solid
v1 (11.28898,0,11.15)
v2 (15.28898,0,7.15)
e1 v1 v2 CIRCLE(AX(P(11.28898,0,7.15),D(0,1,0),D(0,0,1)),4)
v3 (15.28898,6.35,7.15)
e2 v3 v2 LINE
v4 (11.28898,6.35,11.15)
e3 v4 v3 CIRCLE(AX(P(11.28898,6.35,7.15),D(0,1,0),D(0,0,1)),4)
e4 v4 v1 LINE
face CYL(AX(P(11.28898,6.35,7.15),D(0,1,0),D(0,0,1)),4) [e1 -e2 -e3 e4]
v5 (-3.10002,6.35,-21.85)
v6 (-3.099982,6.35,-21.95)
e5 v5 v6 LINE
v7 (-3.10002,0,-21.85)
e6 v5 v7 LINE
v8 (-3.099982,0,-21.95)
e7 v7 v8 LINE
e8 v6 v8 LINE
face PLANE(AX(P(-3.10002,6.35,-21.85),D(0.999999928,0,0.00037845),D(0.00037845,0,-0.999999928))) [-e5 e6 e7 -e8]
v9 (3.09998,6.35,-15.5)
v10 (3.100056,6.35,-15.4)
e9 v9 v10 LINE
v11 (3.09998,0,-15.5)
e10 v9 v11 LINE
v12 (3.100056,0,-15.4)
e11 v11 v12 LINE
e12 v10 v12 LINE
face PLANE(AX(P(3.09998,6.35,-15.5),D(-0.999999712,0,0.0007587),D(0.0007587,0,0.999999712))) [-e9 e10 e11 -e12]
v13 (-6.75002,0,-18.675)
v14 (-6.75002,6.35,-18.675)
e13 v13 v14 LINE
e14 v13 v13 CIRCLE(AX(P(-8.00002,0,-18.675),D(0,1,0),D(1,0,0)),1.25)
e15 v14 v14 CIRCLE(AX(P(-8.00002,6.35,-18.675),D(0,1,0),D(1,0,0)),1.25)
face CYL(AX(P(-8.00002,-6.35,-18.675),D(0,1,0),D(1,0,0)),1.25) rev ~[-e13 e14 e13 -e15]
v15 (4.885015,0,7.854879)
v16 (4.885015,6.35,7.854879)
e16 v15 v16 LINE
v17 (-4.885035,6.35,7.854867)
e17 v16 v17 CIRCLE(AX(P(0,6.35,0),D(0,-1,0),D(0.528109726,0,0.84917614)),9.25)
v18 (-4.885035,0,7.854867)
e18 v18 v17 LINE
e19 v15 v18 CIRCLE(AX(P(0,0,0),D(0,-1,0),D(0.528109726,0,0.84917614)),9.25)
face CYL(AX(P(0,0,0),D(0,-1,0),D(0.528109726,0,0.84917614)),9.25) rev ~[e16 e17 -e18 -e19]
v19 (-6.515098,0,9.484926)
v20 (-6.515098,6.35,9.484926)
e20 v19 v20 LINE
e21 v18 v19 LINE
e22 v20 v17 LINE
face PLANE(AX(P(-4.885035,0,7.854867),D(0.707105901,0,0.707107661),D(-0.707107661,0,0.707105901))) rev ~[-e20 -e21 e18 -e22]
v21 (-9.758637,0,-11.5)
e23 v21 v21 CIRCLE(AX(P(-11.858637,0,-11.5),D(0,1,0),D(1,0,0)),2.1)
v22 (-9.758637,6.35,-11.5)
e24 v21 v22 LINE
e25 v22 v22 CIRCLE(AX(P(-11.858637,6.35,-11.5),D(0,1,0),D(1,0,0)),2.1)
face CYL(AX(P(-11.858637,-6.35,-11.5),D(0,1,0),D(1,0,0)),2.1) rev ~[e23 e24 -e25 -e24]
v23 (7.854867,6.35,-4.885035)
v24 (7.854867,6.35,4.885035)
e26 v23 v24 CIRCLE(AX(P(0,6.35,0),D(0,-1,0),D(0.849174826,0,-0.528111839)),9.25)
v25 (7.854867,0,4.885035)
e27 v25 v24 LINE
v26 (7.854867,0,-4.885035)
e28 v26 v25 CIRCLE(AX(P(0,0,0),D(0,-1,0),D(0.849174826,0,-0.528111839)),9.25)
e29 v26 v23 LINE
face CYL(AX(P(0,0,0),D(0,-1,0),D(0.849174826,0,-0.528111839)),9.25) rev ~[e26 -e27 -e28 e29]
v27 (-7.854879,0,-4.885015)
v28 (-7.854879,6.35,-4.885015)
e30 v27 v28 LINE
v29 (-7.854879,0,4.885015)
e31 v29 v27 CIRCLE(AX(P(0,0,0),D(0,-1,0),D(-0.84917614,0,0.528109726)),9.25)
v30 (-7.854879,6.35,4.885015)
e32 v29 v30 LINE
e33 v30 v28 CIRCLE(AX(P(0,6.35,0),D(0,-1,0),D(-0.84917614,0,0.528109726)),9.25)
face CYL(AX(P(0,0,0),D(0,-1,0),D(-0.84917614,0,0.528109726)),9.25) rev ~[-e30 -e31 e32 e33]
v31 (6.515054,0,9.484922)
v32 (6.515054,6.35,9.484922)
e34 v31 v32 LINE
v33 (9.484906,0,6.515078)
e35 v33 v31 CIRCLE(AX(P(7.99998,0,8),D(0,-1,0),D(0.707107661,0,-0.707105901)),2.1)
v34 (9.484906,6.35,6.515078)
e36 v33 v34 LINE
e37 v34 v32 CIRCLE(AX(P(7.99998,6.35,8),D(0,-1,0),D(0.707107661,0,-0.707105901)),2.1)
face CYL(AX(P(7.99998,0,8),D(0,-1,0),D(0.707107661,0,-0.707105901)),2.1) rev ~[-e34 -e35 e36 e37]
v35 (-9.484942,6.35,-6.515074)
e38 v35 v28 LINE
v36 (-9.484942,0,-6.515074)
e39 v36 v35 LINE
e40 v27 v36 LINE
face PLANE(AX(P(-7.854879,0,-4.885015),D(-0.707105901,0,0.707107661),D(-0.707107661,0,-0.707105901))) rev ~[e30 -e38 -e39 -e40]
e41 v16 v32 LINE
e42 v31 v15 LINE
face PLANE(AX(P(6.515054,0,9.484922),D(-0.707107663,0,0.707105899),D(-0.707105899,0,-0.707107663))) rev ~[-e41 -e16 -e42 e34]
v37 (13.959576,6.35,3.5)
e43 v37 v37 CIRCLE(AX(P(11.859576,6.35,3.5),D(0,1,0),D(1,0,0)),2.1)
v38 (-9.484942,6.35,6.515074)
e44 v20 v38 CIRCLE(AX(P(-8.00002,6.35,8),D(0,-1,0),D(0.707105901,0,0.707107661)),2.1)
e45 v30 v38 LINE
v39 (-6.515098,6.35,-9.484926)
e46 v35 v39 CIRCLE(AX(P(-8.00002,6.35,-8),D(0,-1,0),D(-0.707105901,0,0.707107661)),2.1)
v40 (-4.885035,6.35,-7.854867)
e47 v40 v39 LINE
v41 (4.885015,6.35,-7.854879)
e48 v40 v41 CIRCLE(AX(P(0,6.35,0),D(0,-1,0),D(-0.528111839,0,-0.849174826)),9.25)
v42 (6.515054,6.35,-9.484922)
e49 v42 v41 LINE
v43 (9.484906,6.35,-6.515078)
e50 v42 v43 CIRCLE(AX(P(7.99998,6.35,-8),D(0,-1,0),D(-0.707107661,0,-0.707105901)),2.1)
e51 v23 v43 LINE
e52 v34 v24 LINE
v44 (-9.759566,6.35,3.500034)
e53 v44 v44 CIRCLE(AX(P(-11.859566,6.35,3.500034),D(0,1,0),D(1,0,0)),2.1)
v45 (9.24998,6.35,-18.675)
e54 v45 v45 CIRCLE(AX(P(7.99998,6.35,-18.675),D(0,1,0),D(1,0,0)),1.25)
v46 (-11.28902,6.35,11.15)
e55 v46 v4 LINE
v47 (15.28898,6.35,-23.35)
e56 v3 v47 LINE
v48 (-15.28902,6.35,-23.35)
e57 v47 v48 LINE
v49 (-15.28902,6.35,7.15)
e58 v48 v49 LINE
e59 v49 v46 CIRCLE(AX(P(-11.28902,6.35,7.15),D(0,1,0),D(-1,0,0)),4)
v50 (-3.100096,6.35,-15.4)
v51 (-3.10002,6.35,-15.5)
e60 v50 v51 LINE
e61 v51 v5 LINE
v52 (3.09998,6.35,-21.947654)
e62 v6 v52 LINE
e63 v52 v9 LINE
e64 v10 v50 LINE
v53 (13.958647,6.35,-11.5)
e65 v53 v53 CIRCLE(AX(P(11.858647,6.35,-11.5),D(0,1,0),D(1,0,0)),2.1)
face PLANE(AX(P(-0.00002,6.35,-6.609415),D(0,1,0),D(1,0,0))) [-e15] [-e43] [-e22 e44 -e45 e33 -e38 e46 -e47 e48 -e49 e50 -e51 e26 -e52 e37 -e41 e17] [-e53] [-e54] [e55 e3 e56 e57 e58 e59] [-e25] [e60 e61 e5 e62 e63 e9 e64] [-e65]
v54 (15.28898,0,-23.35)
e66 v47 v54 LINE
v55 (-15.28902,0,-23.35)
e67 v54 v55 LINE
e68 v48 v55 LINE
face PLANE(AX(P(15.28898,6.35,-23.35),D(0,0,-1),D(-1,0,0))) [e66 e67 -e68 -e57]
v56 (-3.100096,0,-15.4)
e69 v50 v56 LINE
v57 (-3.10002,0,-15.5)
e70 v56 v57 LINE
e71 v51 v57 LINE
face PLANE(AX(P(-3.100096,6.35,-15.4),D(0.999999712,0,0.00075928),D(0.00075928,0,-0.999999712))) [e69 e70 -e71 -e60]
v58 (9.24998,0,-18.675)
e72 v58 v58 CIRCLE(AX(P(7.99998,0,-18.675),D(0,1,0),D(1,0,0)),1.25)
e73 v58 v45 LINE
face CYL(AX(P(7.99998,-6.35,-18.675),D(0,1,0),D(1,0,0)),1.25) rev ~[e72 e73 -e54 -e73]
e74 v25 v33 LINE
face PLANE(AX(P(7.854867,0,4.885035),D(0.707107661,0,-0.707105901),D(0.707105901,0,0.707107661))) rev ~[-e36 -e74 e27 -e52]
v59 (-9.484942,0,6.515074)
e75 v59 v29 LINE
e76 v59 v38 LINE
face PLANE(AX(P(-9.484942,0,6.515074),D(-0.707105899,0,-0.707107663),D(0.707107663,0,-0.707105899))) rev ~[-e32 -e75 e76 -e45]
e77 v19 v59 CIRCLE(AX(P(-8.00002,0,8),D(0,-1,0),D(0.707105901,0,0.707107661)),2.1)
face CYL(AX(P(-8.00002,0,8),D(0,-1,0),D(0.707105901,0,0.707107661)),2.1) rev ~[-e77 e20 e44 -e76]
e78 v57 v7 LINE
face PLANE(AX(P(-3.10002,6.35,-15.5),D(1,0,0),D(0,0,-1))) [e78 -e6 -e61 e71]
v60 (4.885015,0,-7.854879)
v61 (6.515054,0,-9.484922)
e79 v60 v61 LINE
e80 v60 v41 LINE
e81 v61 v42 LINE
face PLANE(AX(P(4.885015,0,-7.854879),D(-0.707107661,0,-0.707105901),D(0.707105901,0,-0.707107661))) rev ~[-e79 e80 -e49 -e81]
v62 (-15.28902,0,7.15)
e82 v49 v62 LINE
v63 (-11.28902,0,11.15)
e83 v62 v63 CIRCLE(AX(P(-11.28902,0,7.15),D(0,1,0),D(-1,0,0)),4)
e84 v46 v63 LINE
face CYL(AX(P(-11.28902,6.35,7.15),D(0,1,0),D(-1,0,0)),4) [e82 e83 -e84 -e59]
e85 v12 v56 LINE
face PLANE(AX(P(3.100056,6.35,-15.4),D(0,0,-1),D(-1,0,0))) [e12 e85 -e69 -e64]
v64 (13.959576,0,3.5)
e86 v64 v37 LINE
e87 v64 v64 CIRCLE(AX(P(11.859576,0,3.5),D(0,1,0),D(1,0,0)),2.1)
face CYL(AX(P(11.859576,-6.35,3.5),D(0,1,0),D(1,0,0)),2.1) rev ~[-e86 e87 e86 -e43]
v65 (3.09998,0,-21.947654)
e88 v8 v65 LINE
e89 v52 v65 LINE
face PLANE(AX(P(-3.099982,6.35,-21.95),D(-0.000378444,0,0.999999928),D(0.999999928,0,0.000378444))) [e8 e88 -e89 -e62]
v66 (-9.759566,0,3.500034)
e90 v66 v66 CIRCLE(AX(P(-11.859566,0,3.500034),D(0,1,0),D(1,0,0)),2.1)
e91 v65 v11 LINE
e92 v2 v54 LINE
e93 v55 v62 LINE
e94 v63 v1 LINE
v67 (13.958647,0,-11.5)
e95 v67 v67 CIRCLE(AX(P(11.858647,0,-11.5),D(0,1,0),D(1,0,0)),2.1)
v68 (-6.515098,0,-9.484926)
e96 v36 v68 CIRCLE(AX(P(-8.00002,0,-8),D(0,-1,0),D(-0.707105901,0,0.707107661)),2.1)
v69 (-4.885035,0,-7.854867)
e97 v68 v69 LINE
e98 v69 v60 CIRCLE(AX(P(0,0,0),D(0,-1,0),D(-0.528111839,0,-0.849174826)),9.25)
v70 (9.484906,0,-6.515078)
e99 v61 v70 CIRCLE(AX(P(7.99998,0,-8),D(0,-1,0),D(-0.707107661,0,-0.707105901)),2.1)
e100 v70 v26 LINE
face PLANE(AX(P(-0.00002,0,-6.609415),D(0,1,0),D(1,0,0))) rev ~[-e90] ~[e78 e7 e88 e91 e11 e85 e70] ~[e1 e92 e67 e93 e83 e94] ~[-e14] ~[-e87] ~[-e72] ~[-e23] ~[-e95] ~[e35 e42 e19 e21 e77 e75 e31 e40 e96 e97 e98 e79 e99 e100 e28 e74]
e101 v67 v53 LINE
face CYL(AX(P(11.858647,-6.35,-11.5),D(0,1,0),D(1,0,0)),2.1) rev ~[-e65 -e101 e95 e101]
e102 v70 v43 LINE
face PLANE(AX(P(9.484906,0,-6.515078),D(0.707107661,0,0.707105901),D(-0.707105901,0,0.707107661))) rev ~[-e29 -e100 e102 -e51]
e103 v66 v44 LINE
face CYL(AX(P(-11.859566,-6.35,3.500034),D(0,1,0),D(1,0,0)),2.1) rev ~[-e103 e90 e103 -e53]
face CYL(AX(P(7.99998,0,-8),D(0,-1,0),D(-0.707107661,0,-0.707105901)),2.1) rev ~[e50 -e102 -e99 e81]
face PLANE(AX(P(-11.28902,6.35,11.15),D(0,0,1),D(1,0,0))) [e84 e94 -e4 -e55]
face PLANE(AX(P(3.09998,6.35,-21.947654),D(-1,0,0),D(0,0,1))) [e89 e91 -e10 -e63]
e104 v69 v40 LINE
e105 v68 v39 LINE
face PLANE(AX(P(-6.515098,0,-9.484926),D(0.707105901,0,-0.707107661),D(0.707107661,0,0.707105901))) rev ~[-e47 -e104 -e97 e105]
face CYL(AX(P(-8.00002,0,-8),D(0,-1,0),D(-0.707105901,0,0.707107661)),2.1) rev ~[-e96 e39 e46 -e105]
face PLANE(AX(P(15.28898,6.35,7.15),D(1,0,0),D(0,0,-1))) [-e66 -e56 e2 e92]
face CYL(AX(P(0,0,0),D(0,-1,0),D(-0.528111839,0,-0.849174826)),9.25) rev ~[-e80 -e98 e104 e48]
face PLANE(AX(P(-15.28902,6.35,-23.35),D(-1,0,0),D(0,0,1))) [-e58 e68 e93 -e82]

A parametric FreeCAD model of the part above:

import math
import FreeCAD as App
import Part
import Sketcher

doc = App.newDocument("Part")
body = doc.addObject("PartDesign::Body", "Body")

sketch1 = doc.addObject("Sketcher::SketchObject", "Sketch")
body.addObject(sketch1)
sketch1.AttachmentSupport = (doc.XZ_Plane, [""])
sketch1.MapMode = "FlatFace"
sketch1.AttachmentOffset = App.Placement(App.Vector(0, 0, -6.35), App.Rotation())
sketch1.addGeometry(Part.LineSegment(App.Vector(-15.29, -23.35, 0), App.Vector(-15.29, 7.15, 0)), False)
sketch1.addGeometry(Part.ArcOfCircle(Part.Circle(App.Vector(-11.29, 7.15, 0), App.Vector(0, 0, 1), 4), math.radians(90), math.radians(180)), False)
sketch1.addGeometry(Part.LineSegment(App.Vector(-11.29, 11.15, 0), App.Vector(11.29, 11.15, 0)), False)
sketch1.addGeometry(Part.ArcOfCircle(Part.Circle(App.Vector(11.29, 7.15, 0), App.Vector(0, 0, 1), 4), math.radians(0), math.radians(90)), False)
sketch1.addGeometry(Part.LineSegment(App.Vector(15.29, 7.15, 0), App.Vector(15.29, -23.35, 0)), False)
sketch1.addGeometry(Part.LineSegment(App.Vector(15.29, -23.35, 0), App.Vector(-15.29, -23.35, 0)), False)
sketch1.addGeometry(Part.LineSegment(App.Vector(3.1, -15.4, 0), App.Vector(-3.1, -15.4, 0)), False)
sketch1.addGeometry(Part.LineSegment(App.Vector(-3.1, -15.4, 0), App.Vector(-3.1, -15.5, 0)), False)
sketch1.addGeometry(Part.LineSegment(App.Vector(-3.1, -15.5, 0), App.Vector(-3.1, -21.85, 0)), False)
sketch1.addGeometry(Part.LineSegment(App.Vector(-3.1, -21.85, 0), App.Vector(-3.1, -21.95, 0)), False)
sketch1.addGeometry(Part.LineSegment(App.Vector(-3.1, -21.95, 0), App.Vector(3.1, -21.95, 0)), False)
sketch1.addGeometry(Part.LineSegment(App.Vector(3.1, -21.95, 0), App.Vector(3.1, -15.5, 0)), False)
sketch1.addGeometry(Part.LineSegment(App.Vector(3.1, -15.5, 0), App.Vector(3.1, -15.4, 0)), False)
sketch1.addConstraint(Sketcher.Constraint("Tangent", 0, 2, 1, 2))
sketch1.addConstraint(Sketcher.Constraint("Tangent", 1, 1, 2, 1))
sketch1.addConstraint(Sketcher.Constraint("Tangent", 2, 2, 3, 2))
sketch1.addConstraint(Sketcher.Constraint("Tangent", 3, 1, 4, 1))
sketch1.addConstraint(Sketcher.Constraint("Coincident", 4, 2, 5, 1))
sketch1.addConstraint(Sketcher.Constraint("Coincident", 5, 2, 0, 1))
sketch1.addConstraint(Sketcher.Constraint("Coincident", 6, 2, 7, 1))
sketch1.addConstraint(Sketcher.Constraint("Coincident", 7, 2, 8, 1))
sketch1.addConstraint(Sketcher.Constraint("Coincident", 8, 2, 9, 1))
sketch1.addConstraint(Sketcher.Constraint("Coincident", 9, 2, 10, 1))
sketch1.addConstraint(Sketcher.Constraint("Coincident", 10, 2, 11, 1))
sketch1.addConstraint(Sketcher.Constraint("Coincident", 11, 2, 12, 1))
sketch1.addConstraint(Sketcher.Constraint("Coincident", 12, 2, 6, 1))
sketch1.addConstraint(Sketcher.Constraint("Vertical", 0))
sketch1.addConstraint(Sketcher.Constraint("Horizontal", 2))
sketch1.addConstraint(Sketcher.Constraint("Vertical", 4))
sketch1.addConstraint(Sketcher.Constraint("Horizontal", 5))
sketch1.addConstraint(Sketcher.Constraint("Horizontal", 6))
sketch1.addConstraint(Sketcher.Constraint("Vertical", 8))
sketch1.addConstraint(Sketcher.Constraint("Vertical", 11))
sketch1.addConstraint(Sketcher.Constraint("Equal", 1, 3))
sketch1.addConstraint(Sketcher.Constraint("Perpendicular", 9, 10))
sketch1.addConstraint(Sketcher.Constraint("Horizontal", 7, 2, 11, 2))
sketch1.addConstraint(Sketcher.Constraint("Equal", 7, 9))
sketch1.addConstraint(Sketcher.Constraint("Radius", 1, 4.0))
sketch1.addConstraint(Sketcher.Constraint("DistanceY", 0, 1, 0, 2, 30.5))
sketch1.addConstraint(Sketcher.Constraint("DistanceY", 8, 2, 1, 3, 29.0))
sketch1.addConstraint(Sketcher.Constraint("Distance", 7, 0.1))
sketch1.addConstraint(Sketcher.Constraint("DistanceY", 8, 2, 8, 1, 6.35))
sketch1.addConstraint(Sketcher.Constraint("DistanceY", 6, 2, -1, 1, 15.4))
sketch1.addConstraint(Sketcher.Constraint("DistanceX", 8, 2, 10, 2, 6.2))
sketch1.addConstraint(Sketcher.Constraint("DistanceX", 2, 1, 2, 2, 22.578))
sketch1.addConstraint(Sketcher.Constraint("DistanceX", 5, 2, 7, 2, 12.189))
sketch1.addConstraint(Sketcher.Constraint("DistanceX", 6, 2, 6, 1, 6.200152))
sketch1.addConstraint(Sketcher.Constraint("DistanceY", 11, 1, 11, 2, 6.447654))
sketch1.addConstraint(Sketcher.Constraint("DistanceX", 1, 3, -1, 1, 11.28902))
sketch1.addConstraint(Sketcher.Constraint("DistanceX", 6, 2, -1, 1, 3.100096))
pad1 = doc.addObject("PartDesign::Pad", "Pad")
body.addObject(pad1)
pad1.Profile = sketch1
pad1.Length = 6.35

sketch2 = doc.addObject("Sketcher::SketchObject", "Sketch001")
body.addObject(sketch2)
sketch2.AttachmentSupport = (doc.XZ_Plane, [""])
sketch2.MapMode = "FlatFace"
sketch2.addGeometry(Part.LineSegment(App.Vector(4.9, -7.9, 0), App.Vector(6.5, -9.5, 0)), False)
sketch2.addGeometry(Part.ArcOfCircle(Part.Circle(App.Vector(8, -8, 0), App.Vector(0, 0, 1), 2.1), math.radians(-135), math.radians(45)), False)
sketch2.addGeometry(Part.LineSegment(App.Vector(9.5, -6.5, 0), App.Vector(7.9, -4.9, 0)), False)
sketch2.addGeometry(Part.ArcOfCircle(Part.Circle(App.Vector(0, 0, 0), App.Vector(0, 0, 1), 9.3), math.radians(-32), math.radians(32)), False)
sketch2.addGeometry(Part.LineSegment(App.Vector(7.9, 4.9, 0), App.Vector(9.5, 6.5, 0)), False)
sketch2.addGeometry(Part.ArcOfCircle(Part.Circle(App.Vector(8, 8, 0), App.Vector(0, 0, 1), 2.1), math.radians(-45), math.radians(135)), False)
sketch2.addGeometry(Part.LineSegment(App.Vector(6.5, 9.5, 0), App.Vector(4.9, 7.9, 0)), False)
sketch2.addGeometry(Part.ArcOfCircle(Part.Circle(App.Vector(0, 0, 0), App.Vector(0, 0, 1), 9.3), math.radians(58), math.radians(122)), False)
sketch2.addGeometry(Part.LineSegment(App.Vector(-4.9, 7.9, 0), App.Vector(-6.5, 9.5, 0)), False)
sketch2.addGeometry(Part.ArcOfCircle(Part.Circle(App.Vector(-8, 8, 0), App.Vector(0, 0, 1), 2.1), math.radians(45), math.radians(225)), False)
sketch2.addGeometry(Part.LineSegment(App.Vector(-9.5, 6.5, 0), App.Vector(-7.9, 4.9, 0)), False)
sketch2.addGeometry(Part.ArcOfCircle(Part.Circle(App.Vector(0, 0, 0), App.Vector(0, 0, 1), 9.2), math.radians(148), math.radians(212)), False)
sketch2.addGeometry(Part.LineSegment(App.Vector(-7.9, -4.9, 0), App.Vector(-9.5, -6.5, 0)), False)
sketch2.addGeometry(Part.ArcOfCircle(Part.Circle(App.Vector(-8, -8, 0), App.Vector(0, 0, 1), 2.1), math.radians(135), math.radians(315)), False)
sketch2.addGeometry(Part.LineSegment(App.Vector(-6.5, -9.5, 0), App.Vector(-4.9, -7.9, 0)), False)
sketch2.addGeometry(Part.ArcOfCircle(Part.Circle(App.Vector(0, 0, 0), App.Vector(0, 0, 1), 9.3), math.radians(-122), math.radians(-58)), False)
sketch2.addConstraint(Sketcher.Constraint("Tangent", 0, 2, 1, 1))
sketch2.addConstraint(Sketcher.Constraint("Tangent", 1, 2, 2, 1))
sketch2.addConstraint(Sketcher.Constraint("Coincident", 2, 2, 3, 1))
sketch2.addConstraint(Sketcher.Constraint("Coincident", 3, 2, 4, 1))
sketch2.addConstraint(Sketcher.Constraint("Tangent", 4, 2, 5, 1))
sketch2.addConstraint(Sketcher.Constraint("Tangent", 5, 2, 6, 1))
sketch2.addConstraint(Sketcher.Constraint("Coincident", 6, 2, 7, 1))
sketch2.addConstraint(Sketcher.Constraint("Coincident", 7, 2, 8, 1))
sketch2.addConstraint(Sketcher.Constraint("Tangent", 8, 2, 9, 1))
sketch2.addConstraint(Sketcher.Constraint("Tangent", 9, 2, 10, 1))
sketch2.addConstraint(Sketcher.Constraint("Coincident", 10, 2, 11, 1))
sketch2.addConstraint(Sketcher.Constraint("Coincident", 11, 2, 12, 1))
sketch2.addConstraint(Sketcher.Constraint("Tangent", 12, 2, 13, 1))
sketch2.addConstraint(Sketcher.Constraint("Tangent", 13, 2, 14, 1))
sketch2.addConstraint(Sketcher.Constraint("Coincident", 14, 2, 15, 1))
sketch2.addConstraint(Sketcher.Constraint("Coincident", 15, 2, 0, 1))
sketch2.addConstraint(Sketcher.Constraint("Coincident", 3, 3, -1, 1))
sketch2.addConstraint(Sketcher.Constraint("Coincident", 7, 3, -1, 1))
sketch2.addConstraint(Sketcher.Constraint("Coincident", 11, 3, -1, 1))
sketch2.addConstraint(Sketcher.Constraint("Coincident", 15, 3, -1, 1))
sketch2.addConstraint(Sketcher.Constraint("Equal", 1, 5))
sketch2.addConstraint(Sketcher.Constraint("Equal", 3, 7))
sketch2.addConstraint(Sketcher.Constraint("Equal", 5, 9))
sketch2.addConstraint(Sketcher.Constraint("Equal", 7, 11))
sketch2.addConstraint(Sketcher.Constraint("Equal", 9, 13))
sketch2.addConstraint(Sketcher.Constraint("Equal", 11, 15))
sketch2.addConstraint(Sketcher.Constraint("Symmetric", 1, 3, 5, 3, -1))
sketch2.addConstraint(Sketcher.Constraint("Symmetric", 9, 3, 13, 3, -1))
sketch2.addConstraint(Sketcher.Constraint("Parallel", 0, 2))
sketch2.addConstraint(Sketcher.Constraint("Parallel", 4, 6))
sketch2.addConstraint(Sketcher.Constraint("Perpendicular", 6, 8))
sketch2.addConstraint(Sketcher.Constraint("Parallel", 8, 10))
sketch2.addConstraint(Sketcher.Constraint("Perpendicular", 2, 12))
sketch2.addConstraint(Sketcher.Constraint("Parallel", 12, 14))
sketch2.addConstraint(Sketcher.Constraint("Horizontal", 5, 3, 9, 3))
sketch2.addConstraint(Sketcher.Constraint("Vertical", 2, 2, 3, 2))
sketch2.addConstraint(Sketcher.Constraint("Equal", 0, 2))
sketch2.addConstraint(Sketcher.Constraint("Equal", 8, 10))
sketch2.addConstraint(Sketcher.Constraint("Radius", 1, 2.1))
sketch2.addConstraint(Sketcher.Constraint("Radius", 3, 9.25))
sketch2.addConstraint(Sketcher.Constraint("DistanceY", 1, 3, -1, 1, 8.0))
sketch2.addConstraint(Sketcher.Constraint("DistanceY", 4, 2, 6, 2, 1.339802))
pocket1 = doc.addObject("PartDesign::Pocket", "Pocket")
body.addObject(pocket1)
pocket1.Profile = sketch2
pocket1.Type = "ThroughAll"

sketch3 = doc.addObject("Sketcher::SketchObject", "Sketch002")
body.addObject(sketch3)
sketch3.AttachmentSupport = (doc.XZ_Plane, [""])
sketch3.MapMode = "FlatFace"
sketch3.addGeometry(Part.Circle(App.Vector(-8, -18.7, 0), App.Vector(0, 0, 1), 1.2), False)
sketch3.addConstraint(Sketcher.Constraint("Diameter", 0, 2.5))
sketch3.addConstraint(Sketcher.Constraint("DistanceY", 0, 3, -1, 1, 18.675))
sketch3.addConstraint(Sketcher.Constraint("DistanceX", 0, 3, -1, 1, 8.00002))
doc.recompute()
hole = doc.addObject("PartDesign::Hole", "Hole")
body.addObject(hole)
hole.Profile = sketch3
hole.ThreadType = "None"
hole.Diameter = 2.5
hole.DepthType = "Dimension"
hole.Depth = 6.35
hole.DrillPoint = "Flat"

sketch4 = doc.addObject("Sketcher::SketchObject", "Sketch003")
body.addObject(sketch4)
sketch4.AttachmentSupport = (doc.XZ_Plane, [""])
sketch4.MapMode = "FlatFace"
sketch4.addGeometry(Part.Circle(App.Vector(8, -18.7, 0), App.Vector(0, 0, 1), 1.2), False)
sketch4.addConstraint(Sketcher.Constraint("Diameter", 0, 2.5))
sketch4.addConstraint(Sketcher.Constraint("DistanceY", 0, 3, -1, 1, 18.675))
sketch4.addConstraint(Sketcher.Constraint("DistanceX", -1, 1, 0, 3, 7.99998))
doc.recompute()
hole2 = doc.addObject("PartDesign::Hole", "Hole001")
body.addObject(hole2)
hole2.Profile = sketch4
hole2.ThreadType = "None"
hole2.Diameter = 2.5
hole2.DepthType = "Dimension"
hole2.Depth = 6.35
hole2.DrillPoint = "Flat"

sketch5 = doc.addObject("Sketcher::SketchObject", "Sketch004")
body.addObject(sketch5)
sketch5.AttachmentSupport = (doc.XZ_Plane, [""])
sketch5.MapMode = "FlatFace"
sketch5.addGeometry(Part.Circle(App.Vector(11.9, -11.5, 0), App.Vector(0, 0, 1), 2.1), False)
sketch5.addConstraint(Sketcher.Constraint("Diameter", 0, 4.2))
sketch5.addConstraint(Sketcher.Constraint("DistanceY", 0, 3, -1, 1, 11.5))
sketch5.addConstraint(Sketcher.Constraint("DistanceX", -1, 1, 0, 3, 11.858647))
doc.recompute()
hole3 = doc.addObject("PartDesign::Hole", "Hole002")
body.addObject(hole3)
hole3.Profile = sketch5
hole3.ThreadType = "None"
hole3.Diameter = 4.2
hole3.DepthType = "Dimension"
hole3.Depth = 6.35
hole3.DrillPoint = "Flat"

sketch6 = doc.addObject("Sketcher::SketchObject", "Sketch005")
body.addObject(sketch6)
sketch6.AttachmentSupport = (doc.XZ_Plane, [""])
sketch6.MapMode = "FlatFace"
sketch6.addGeometry(Part.Circle(App.Vector(-11.9, -11.5, 0), App.Vector(0, 0, 1), 2.1), False)
sketch6.addConstraint(Sketcher.Constraint("Diameter", 0, 4.2))
sketch6.addConstraint(Sketcher.Constraint("DistanceY", 0, 3, -1, 1, 11.5))
sketch6.addConstraint(Sketcher.Constraint("DistanceX", 0, 3, -1, 1, 11.858637))
doc.recompute()
hole4 = doc.addObject("PartDesign::Hole", "Hole003")
body.addObject(hole4)
hole4.Profile = sketch6
hole4.ThreadType = "None"
hole4.Diameter = 4.2
hole4.DepthType = "Dimension"
hole4.Depth = 6.35
hole4.DrillPoint = "Flat"

sketch7 = doc.addObject("Sketcher::SketchObject", "Sketch006")
body.addObject(sketch7)
sketch7.AttachmentSupport = (doc.XZ_Plane, [""])
sketch7.MapMode = "FlatFace"
sketch7.addGeometry(Part.Circle(App.Vector(11.9, 3.5, 0), App.Vector(0, 0, 1), 2.1), False)
sketch7.addConstraint(Sketcher.Constraint("Diameter", 0, 4.2))
sketch7.addConstraint(Sketcher.Constraint("DistanceY", -1, 1, 0, 3, 3.5))
sketch7.addConstraint(Sketcher.Constraint("DistanceX", -1, 1, 0, 3, 11.859576))
doc.recompute()
hole5 = doc.addObject("PartDesign::Hole", "Hole004")
body.addObject(hole5)
hole5.Profile = sketch7
hole5.ThreadType = "None"
hole5.Diameter = 4.2
hole5.DepthType = "Dimension"
hole5.Depth = 6.35
hole5.DrillPoint = "Flat"

sketch8 = doc.addObject("Sketcher::SketchObject", "Sketch007")
body.addObject(sketch8)
sketch8.AttachmentSupport = (doc.XZ_Plane, [""])
sketch8.MapMode = "FlatFace"
sketch8.addGeometry(Part.Circle(App.Vector(-11.9, 3.5, 0), App.Vector(0, 0, 1), 2.1), False)
sketch8.addConstraint(Sketcher.Constraint("Diameter", 0, 4.2))
sketch8.addConstraint(Sketcher.Constraint("DistanceX", 0, 3, -1, 1, 11.859566))
sketch8.addConstraint(Sketcher.Constraint("DistanceY", -1, 1, 0, 3, 3.500034))
doc.recompute()
hole6 = doc.addObject("PartDesign::Hole", "Hole005")
body.addObject(hole6)
hole6.Profile = sketch8
hole6.ThreadType = "None"
hole6.Diameter = 4.2
hole6.DepthType = "Dimension"
hole6.Depth = 6.35
hole6.DrillPoint = "Flat"

doc.recompute()
